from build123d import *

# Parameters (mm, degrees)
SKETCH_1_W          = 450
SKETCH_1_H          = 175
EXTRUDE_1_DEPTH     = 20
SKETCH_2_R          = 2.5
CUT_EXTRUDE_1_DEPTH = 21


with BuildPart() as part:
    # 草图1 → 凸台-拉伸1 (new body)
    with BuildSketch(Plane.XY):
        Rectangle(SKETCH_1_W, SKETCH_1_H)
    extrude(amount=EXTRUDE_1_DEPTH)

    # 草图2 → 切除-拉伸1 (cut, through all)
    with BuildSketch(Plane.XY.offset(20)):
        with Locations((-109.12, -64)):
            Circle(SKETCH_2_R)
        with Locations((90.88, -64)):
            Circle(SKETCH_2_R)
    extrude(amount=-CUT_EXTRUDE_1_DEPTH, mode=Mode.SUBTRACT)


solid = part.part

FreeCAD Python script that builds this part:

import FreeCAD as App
import Part
import Sketcher
from FreeCAD import Vector
Q = App.Units.Quantity


def add_polygon(sketch, points):
    """Adds a closed chain of lines whose ends are joined by coincident constraints."""
    first, n = sketch.GeometryCount, len(points)
    for a, b in zip(points, points[1:] + points[:1]):
        sketch.addGeometry(Part.LineSegment(App.Vector(*a, 0), App.Vector(*b, 0)), False)
    for i in range(n):
        sketch.addConstraint(Sketcher.Constraint("Coincident", first + i, 2, first + (i + 1) % n, 1))

doc = App.newDocument("Part")
body = doc.addObject("PartDesign::Body", "Body")

sketch1 = body.newObject("Sketcher::SketchObject", "Sketch")
sketch1.AttachmentSupport = (doc.getObject("XY_Plane"), [""])
sketch1.MapMode = "FlatFace"
add_polygon(sketch1, [(-225, 88), (-225, -88), (225, -88), (225, 88)])
sketch1.addConstraint([
    Sketcher.Constraint("Vertical", 0),
    Sketcher.Constraint("Horizontal", 1),
    Sketcher.Constraint("Vertical", 2),
    Sketcher.Constraint("Horizontal", 3),
    Sketcher.Constraint("Symmetric", 0, 2, 2, 2, -1, 1),
    Sketcher.Constraint("DistanceX", 1, 1, 1, 2, Q("450 mm")),
    Sketcher.Constraint("DistanceY", 0, 2, 0, 1, Q("175 mm")),
])
pad1 = body.newObject("PartDesign::Pad", "Pad")
pad1.Profile = sketch1
pad1.Length = 20

sketch2 = body.newObject("Sketcher::SketchObject", "Sketch001")
sketch2.AttachmentSupport = (doc.getObject("XY_Plane"), [""])
sketch2.MapMode = "FlatFace"
sketch2.AttachmentOffset = App.Placement(Vector(0, 0, 20), App.Rotation())
sketch2.addGeometry([
    Part.Circle(Vector(-109.1, -64, 0), Vector(0, 0, 1), 2.5),
    Part.Circle(Vector(90.9, -64, 0), Vector(0, 0, 1), 2.5),
], False)
sketch2.addConstraint([
    Sketcher.Constraint("Equal", 0, 1),
    Sketcher.Constraint("Horizontal", 0, 3, 1, 3),
    Sketcher.Constraint("Diameter", 0, Q("5 mm")),
    Sketcher.Constraint("DistanceY", 0, 3, -1, 1, Q("64 mm")),
    Sketcher.Constraint("DistanceX", 0, 3, 1, 3, Q("200 mm")),
    Sketcher.Constraint("DistanceX", 0, 3, -1, 1, Q("109.12 mm")),
])
pocket1 = body.newObject("PartDesign::Pocket", "Pocket")
pocket1.Profile = sketch2
pocket1.Type = "ThroughAll"

doc.recompute()
